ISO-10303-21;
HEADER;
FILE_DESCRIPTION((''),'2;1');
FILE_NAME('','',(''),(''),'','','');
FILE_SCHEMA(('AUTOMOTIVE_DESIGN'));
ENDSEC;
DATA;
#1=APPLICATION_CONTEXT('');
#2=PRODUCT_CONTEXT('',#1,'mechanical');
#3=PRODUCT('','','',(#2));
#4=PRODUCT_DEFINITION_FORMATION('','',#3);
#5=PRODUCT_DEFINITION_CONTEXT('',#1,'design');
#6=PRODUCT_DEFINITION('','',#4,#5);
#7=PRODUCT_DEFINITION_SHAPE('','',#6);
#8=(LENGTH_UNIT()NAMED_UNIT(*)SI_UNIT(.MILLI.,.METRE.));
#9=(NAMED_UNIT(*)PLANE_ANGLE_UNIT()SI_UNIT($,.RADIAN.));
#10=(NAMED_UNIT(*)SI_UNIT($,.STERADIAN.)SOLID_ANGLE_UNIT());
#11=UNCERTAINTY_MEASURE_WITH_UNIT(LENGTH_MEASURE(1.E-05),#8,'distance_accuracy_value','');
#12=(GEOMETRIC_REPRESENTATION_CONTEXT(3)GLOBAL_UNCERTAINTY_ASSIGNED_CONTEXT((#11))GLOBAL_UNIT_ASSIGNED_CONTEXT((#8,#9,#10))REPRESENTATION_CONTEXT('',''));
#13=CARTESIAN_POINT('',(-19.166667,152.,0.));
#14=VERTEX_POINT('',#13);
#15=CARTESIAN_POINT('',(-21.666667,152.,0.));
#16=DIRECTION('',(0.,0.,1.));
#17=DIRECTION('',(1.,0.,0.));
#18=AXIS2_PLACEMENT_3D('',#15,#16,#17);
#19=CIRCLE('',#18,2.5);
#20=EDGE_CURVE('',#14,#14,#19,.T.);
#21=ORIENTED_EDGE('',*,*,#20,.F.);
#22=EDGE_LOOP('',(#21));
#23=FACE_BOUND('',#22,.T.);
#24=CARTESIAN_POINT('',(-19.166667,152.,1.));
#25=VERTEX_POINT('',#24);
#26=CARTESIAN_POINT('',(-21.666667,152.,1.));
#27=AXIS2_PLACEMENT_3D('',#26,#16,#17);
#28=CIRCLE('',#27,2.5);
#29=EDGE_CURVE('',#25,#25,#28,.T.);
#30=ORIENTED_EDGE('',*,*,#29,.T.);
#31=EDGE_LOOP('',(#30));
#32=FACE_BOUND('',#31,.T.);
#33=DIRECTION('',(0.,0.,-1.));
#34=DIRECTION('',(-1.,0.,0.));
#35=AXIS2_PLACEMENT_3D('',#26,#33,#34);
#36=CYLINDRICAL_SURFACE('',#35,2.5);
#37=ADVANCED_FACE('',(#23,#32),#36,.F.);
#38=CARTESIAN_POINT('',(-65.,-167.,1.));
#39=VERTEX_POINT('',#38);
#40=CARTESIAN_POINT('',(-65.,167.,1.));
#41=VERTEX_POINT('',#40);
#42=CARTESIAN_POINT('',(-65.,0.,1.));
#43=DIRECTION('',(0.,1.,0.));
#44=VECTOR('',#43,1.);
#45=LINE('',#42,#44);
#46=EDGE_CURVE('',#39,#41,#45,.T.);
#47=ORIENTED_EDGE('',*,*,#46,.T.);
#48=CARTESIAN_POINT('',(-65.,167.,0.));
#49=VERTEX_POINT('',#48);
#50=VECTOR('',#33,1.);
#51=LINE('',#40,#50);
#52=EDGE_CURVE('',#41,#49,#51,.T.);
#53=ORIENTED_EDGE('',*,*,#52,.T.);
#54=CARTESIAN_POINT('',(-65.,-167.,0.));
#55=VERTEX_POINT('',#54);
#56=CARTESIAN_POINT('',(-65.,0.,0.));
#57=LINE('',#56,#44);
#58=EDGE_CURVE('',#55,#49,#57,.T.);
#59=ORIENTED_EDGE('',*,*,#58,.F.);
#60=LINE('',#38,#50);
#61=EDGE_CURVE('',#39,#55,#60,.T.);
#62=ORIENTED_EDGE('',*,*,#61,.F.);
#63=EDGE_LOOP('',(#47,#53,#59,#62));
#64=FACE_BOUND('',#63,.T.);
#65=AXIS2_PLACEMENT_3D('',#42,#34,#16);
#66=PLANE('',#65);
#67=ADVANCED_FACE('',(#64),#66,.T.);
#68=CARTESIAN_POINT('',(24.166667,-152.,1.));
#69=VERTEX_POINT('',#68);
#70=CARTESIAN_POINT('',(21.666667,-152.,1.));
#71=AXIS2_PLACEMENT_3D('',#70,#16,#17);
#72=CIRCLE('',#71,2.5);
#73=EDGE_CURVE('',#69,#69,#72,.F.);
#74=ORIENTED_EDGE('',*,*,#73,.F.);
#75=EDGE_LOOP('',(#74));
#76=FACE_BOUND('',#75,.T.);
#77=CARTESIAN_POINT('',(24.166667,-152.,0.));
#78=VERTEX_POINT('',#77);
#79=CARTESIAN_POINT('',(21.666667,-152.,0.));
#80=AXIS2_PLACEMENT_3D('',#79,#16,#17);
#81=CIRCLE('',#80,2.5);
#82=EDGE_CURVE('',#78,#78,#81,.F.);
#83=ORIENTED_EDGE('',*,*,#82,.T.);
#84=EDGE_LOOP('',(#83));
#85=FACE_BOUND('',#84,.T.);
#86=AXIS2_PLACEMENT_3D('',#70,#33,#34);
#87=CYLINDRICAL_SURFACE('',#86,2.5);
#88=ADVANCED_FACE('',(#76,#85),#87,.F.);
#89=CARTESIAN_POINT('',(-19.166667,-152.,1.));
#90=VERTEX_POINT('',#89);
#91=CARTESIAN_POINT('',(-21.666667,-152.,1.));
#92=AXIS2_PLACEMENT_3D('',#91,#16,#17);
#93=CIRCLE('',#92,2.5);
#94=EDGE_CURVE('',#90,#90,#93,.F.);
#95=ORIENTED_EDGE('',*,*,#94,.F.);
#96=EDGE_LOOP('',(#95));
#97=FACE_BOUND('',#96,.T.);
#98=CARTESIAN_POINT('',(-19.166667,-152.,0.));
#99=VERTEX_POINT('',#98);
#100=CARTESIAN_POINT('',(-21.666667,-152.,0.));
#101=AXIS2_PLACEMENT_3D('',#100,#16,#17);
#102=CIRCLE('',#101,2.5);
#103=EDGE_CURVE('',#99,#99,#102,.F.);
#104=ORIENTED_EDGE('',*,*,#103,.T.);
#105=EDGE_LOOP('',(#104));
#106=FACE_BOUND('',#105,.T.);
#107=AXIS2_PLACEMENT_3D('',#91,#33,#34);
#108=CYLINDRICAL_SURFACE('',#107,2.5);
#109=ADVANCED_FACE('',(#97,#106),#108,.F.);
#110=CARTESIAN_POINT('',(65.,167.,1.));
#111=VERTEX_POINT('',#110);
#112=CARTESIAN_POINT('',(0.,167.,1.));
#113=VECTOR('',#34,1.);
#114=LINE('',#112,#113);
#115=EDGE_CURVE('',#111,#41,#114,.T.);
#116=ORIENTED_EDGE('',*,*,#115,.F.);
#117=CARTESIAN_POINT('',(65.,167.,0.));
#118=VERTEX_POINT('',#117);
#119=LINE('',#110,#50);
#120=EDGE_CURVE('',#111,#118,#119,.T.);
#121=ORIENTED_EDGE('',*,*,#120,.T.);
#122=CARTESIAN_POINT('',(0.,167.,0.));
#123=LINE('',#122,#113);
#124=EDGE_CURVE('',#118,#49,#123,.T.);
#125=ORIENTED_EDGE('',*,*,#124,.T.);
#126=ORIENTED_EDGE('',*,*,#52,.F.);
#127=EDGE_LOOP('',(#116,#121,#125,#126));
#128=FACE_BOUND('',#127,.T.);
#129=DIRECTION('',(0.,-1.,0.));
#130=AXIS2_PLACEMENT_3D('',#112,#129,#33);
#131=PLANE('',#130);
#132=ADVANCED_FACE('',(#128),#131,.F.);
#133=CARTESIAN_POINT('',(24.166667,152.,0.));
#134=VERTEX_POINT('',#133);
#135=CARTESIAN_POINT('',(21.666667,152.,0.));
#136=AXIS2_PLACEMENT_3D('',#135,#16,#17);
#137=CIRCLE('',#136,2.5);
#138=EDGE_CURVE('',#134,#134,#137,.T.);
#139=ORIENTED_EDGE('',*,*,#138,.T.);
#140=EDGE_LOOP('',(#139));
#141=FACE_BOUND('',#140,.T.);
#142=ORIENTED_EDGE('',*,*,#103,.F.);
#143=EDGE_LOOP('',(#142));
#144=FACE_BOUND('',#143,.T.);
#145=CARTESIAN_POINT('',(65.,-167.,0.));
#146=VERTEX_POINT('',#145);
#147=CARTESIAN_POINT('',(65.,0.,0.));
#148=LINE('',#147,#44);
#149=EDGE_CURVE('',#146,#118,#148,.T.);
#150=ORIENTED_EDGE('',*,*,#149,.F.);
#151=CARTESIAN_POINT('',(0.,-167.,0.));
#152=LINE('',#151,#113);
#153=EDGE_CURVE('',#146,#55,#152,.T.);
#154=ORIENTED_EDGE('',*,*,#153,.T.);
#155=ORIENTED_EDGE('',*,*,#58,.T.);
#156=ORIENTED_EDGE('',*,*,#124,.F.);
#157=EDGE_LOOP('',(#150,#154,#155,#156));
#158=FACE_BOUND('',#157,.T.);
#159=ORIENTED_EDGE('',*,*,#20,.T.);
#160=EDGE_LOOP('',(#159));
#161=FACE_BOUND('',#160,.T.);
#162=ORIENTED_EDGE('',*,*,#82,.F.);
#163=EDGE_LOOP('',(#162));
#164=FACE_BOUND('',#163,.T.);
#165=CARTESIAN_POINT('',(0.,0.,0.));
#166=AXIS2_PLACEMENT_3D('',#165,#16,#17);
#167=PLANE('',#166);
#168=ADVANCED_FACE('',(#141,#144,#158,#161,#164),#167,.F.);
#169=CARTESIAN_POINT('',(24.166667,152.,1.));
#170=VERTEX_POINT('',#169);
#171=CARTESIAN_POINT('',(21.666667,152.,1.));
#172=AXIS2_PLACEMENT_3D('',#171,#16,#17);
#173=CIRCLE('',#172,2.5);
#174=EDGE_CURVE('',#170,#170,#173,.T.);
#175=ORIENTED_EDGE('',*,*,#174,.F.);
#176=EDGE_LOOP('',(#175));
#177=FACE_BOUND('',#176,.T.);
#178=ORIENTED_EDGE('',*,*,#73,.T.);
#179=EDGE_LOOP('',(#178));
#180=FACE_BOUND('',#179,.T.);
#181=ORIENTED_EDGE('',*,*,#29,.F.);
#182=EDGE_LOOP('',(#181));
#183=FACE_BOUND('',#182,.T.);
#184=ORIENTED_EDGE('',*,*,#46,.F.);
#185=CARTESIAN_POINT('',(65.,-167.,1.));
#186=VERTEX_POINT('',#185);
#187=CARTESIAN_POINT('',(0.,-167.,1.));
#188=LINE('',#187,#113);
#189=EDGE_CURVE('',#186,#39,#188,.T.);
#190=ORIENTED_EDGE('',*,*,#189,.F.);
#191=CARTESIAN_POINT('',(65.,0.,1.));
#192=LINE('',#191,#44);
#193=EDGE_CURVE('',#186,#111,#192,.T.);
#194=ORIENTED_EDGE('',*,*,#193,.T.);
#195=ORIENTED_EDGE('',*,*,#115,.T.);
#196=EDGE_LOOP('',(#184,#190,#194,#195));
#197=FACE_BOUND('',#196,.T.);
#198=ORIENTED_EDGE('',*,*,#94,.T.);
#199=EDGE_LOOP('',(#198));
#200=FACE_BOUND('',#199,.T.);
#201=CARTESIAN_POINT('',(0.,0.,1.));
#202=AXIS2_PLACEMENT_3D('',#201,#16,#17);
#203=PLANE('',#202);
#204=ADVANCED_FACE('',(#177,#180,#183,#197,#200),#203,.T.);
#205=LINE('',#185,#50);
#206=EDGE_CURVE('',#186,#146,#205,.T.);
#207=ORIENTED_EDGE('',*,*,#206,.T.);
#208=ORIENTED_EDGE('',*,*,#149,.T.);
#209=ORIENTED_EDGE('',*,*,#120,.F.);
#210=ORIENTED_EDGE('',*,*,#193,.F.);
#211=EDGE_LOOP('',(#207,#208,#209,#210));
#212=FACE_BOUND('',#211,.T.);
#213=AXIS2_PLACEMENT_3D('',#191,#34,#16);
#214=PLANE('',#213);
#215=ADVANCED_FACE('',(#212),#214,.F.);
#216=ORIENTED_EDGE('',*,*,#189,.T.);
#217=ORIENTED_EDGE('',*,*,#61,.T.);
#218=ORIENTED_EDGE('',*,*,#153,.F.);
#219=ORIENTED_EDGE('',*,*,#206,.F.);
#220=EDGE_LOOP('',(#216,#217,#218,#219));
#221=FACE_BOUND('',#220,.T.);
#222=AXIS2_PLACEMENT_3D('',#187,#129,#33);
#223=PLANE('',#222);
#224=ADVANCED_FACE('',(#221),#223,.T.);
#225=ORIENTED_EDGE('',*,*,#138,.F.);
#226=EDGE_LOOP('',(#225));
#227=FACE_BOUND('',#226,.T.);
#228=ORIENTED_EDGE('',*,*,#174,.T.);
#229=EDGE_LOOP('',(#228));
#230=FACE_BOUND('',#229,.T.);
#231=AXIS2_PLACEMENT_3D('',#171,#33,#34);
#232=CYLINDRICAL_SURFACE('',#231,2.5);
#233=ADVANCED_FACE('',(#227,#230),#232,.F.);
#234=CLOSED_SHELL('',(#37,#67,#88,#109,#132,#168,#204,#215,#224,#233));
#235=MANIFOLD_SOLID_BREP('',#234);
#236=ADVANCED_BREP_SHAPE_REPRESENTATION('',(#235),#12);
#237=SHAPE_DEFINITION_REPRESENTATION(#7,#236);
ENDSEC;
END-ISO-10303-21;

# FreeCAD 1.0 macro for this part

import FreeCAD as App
import Part
import Sketcher

doc = App.newDocument("Part")
body = doc.addObject("PartDesign::Body", "Body")

# Sketch on XY plane
sketch1 = body.newObject("Sketcher::SketchObject", "Sketch")
sketch1.AttachmentSupport = (doc.getObject("XY_Plane"), [""])
sketch1.MapMode = "FlatFace"
sketch1.addGeometry([
    Part.LineSegment(App.Vector(65, 167, 0), App.Vector(-65, 167, 0)),  # 0
    Part.LineSegment(App.Vector(-65, 167, 0), App.Vector(-65, -167, 0)),  # 1
    Part.LineSegment(App.Vector(-65, -167, 0), App.Vector(65, -167, 0)),  # 2
    Part.LineSegment(App.Vector(65, -167, 0), App.Vector(65, 167, 0)),  # 3
    Part.Circle(App.Vector(-21.7, -152, 0), App.Vector(0, 0, 1), 2.5),  # 4
    Part.Circle(App.Vector(21.7, -152, 0), App.Vector(0, 0, 1), 2.5),  # 5
    Part.Circle(App.Vector(-21.7, 152, 0), App.Vector(0, 0, 1), 2.5),  # 6
    Part.Circle(App.Vector(21.7, 152, 0), App.Vector(0, 0, 1), 2.5),  # 7
], False)
sketch1.addConstraint([
    Sketcher.Constraint("Coincident", 0, 2, 1, 1),
    Sketcher.Constraint("Coincident", 1, 2, 2, 1),
    Sketcher.Constraint("Coincident", 2, 2, 3, 1),
    Sketcher.Constraint("Coincident", 3, 2, 0, 1),
    Sketcher.Constraint("Horizontal", 0),
    Sketcher.Constraint("Vertical", 1),
    Sketcher.Constraint("Horizontal", 2),
    Sketcher.Constraint("Vertical", 3),
    Sketcher.Constraint("Equal", 4, 5),
    Sketcher.Constraint("Equal", 5, 6),
    Sketcher.Constraint("Equal", 6, 7),
    Sketcher.Constraint("Symmetric", 5, 3, 6, 3, -1, 1),
    Sketcher.Constraint("Symmetric", 4, 3, 7, 3, -1, 1),
    Sketcher.Constraint("Symmetric", 0, 2, 2, 2, -1, 1),
    Sketcher.Constraint("Symmetric", 4, 3, 5, 3, -2),
    Sketcher.Constraint("Diameter", 4, 5.0),
    Sketcher.Constraint("DistanceX", 0, 2, 0, 1, 130.0),
    Sketcher.Constraint("DistanceY", 1, 2, 1, 1, 334.0),
    Sketcher.Constraint("DistanceY", 4, 3, -1, 1, 152.0),
    Sketcher.Constraint("DistanceX", 4, 3, -1, 1, 21.666667),
])
pad1 = body.newObject("PartDesign::Pad", "Pad")
pad1.Profile = sketch1
pad1.Length = 1

doc.recompute()
